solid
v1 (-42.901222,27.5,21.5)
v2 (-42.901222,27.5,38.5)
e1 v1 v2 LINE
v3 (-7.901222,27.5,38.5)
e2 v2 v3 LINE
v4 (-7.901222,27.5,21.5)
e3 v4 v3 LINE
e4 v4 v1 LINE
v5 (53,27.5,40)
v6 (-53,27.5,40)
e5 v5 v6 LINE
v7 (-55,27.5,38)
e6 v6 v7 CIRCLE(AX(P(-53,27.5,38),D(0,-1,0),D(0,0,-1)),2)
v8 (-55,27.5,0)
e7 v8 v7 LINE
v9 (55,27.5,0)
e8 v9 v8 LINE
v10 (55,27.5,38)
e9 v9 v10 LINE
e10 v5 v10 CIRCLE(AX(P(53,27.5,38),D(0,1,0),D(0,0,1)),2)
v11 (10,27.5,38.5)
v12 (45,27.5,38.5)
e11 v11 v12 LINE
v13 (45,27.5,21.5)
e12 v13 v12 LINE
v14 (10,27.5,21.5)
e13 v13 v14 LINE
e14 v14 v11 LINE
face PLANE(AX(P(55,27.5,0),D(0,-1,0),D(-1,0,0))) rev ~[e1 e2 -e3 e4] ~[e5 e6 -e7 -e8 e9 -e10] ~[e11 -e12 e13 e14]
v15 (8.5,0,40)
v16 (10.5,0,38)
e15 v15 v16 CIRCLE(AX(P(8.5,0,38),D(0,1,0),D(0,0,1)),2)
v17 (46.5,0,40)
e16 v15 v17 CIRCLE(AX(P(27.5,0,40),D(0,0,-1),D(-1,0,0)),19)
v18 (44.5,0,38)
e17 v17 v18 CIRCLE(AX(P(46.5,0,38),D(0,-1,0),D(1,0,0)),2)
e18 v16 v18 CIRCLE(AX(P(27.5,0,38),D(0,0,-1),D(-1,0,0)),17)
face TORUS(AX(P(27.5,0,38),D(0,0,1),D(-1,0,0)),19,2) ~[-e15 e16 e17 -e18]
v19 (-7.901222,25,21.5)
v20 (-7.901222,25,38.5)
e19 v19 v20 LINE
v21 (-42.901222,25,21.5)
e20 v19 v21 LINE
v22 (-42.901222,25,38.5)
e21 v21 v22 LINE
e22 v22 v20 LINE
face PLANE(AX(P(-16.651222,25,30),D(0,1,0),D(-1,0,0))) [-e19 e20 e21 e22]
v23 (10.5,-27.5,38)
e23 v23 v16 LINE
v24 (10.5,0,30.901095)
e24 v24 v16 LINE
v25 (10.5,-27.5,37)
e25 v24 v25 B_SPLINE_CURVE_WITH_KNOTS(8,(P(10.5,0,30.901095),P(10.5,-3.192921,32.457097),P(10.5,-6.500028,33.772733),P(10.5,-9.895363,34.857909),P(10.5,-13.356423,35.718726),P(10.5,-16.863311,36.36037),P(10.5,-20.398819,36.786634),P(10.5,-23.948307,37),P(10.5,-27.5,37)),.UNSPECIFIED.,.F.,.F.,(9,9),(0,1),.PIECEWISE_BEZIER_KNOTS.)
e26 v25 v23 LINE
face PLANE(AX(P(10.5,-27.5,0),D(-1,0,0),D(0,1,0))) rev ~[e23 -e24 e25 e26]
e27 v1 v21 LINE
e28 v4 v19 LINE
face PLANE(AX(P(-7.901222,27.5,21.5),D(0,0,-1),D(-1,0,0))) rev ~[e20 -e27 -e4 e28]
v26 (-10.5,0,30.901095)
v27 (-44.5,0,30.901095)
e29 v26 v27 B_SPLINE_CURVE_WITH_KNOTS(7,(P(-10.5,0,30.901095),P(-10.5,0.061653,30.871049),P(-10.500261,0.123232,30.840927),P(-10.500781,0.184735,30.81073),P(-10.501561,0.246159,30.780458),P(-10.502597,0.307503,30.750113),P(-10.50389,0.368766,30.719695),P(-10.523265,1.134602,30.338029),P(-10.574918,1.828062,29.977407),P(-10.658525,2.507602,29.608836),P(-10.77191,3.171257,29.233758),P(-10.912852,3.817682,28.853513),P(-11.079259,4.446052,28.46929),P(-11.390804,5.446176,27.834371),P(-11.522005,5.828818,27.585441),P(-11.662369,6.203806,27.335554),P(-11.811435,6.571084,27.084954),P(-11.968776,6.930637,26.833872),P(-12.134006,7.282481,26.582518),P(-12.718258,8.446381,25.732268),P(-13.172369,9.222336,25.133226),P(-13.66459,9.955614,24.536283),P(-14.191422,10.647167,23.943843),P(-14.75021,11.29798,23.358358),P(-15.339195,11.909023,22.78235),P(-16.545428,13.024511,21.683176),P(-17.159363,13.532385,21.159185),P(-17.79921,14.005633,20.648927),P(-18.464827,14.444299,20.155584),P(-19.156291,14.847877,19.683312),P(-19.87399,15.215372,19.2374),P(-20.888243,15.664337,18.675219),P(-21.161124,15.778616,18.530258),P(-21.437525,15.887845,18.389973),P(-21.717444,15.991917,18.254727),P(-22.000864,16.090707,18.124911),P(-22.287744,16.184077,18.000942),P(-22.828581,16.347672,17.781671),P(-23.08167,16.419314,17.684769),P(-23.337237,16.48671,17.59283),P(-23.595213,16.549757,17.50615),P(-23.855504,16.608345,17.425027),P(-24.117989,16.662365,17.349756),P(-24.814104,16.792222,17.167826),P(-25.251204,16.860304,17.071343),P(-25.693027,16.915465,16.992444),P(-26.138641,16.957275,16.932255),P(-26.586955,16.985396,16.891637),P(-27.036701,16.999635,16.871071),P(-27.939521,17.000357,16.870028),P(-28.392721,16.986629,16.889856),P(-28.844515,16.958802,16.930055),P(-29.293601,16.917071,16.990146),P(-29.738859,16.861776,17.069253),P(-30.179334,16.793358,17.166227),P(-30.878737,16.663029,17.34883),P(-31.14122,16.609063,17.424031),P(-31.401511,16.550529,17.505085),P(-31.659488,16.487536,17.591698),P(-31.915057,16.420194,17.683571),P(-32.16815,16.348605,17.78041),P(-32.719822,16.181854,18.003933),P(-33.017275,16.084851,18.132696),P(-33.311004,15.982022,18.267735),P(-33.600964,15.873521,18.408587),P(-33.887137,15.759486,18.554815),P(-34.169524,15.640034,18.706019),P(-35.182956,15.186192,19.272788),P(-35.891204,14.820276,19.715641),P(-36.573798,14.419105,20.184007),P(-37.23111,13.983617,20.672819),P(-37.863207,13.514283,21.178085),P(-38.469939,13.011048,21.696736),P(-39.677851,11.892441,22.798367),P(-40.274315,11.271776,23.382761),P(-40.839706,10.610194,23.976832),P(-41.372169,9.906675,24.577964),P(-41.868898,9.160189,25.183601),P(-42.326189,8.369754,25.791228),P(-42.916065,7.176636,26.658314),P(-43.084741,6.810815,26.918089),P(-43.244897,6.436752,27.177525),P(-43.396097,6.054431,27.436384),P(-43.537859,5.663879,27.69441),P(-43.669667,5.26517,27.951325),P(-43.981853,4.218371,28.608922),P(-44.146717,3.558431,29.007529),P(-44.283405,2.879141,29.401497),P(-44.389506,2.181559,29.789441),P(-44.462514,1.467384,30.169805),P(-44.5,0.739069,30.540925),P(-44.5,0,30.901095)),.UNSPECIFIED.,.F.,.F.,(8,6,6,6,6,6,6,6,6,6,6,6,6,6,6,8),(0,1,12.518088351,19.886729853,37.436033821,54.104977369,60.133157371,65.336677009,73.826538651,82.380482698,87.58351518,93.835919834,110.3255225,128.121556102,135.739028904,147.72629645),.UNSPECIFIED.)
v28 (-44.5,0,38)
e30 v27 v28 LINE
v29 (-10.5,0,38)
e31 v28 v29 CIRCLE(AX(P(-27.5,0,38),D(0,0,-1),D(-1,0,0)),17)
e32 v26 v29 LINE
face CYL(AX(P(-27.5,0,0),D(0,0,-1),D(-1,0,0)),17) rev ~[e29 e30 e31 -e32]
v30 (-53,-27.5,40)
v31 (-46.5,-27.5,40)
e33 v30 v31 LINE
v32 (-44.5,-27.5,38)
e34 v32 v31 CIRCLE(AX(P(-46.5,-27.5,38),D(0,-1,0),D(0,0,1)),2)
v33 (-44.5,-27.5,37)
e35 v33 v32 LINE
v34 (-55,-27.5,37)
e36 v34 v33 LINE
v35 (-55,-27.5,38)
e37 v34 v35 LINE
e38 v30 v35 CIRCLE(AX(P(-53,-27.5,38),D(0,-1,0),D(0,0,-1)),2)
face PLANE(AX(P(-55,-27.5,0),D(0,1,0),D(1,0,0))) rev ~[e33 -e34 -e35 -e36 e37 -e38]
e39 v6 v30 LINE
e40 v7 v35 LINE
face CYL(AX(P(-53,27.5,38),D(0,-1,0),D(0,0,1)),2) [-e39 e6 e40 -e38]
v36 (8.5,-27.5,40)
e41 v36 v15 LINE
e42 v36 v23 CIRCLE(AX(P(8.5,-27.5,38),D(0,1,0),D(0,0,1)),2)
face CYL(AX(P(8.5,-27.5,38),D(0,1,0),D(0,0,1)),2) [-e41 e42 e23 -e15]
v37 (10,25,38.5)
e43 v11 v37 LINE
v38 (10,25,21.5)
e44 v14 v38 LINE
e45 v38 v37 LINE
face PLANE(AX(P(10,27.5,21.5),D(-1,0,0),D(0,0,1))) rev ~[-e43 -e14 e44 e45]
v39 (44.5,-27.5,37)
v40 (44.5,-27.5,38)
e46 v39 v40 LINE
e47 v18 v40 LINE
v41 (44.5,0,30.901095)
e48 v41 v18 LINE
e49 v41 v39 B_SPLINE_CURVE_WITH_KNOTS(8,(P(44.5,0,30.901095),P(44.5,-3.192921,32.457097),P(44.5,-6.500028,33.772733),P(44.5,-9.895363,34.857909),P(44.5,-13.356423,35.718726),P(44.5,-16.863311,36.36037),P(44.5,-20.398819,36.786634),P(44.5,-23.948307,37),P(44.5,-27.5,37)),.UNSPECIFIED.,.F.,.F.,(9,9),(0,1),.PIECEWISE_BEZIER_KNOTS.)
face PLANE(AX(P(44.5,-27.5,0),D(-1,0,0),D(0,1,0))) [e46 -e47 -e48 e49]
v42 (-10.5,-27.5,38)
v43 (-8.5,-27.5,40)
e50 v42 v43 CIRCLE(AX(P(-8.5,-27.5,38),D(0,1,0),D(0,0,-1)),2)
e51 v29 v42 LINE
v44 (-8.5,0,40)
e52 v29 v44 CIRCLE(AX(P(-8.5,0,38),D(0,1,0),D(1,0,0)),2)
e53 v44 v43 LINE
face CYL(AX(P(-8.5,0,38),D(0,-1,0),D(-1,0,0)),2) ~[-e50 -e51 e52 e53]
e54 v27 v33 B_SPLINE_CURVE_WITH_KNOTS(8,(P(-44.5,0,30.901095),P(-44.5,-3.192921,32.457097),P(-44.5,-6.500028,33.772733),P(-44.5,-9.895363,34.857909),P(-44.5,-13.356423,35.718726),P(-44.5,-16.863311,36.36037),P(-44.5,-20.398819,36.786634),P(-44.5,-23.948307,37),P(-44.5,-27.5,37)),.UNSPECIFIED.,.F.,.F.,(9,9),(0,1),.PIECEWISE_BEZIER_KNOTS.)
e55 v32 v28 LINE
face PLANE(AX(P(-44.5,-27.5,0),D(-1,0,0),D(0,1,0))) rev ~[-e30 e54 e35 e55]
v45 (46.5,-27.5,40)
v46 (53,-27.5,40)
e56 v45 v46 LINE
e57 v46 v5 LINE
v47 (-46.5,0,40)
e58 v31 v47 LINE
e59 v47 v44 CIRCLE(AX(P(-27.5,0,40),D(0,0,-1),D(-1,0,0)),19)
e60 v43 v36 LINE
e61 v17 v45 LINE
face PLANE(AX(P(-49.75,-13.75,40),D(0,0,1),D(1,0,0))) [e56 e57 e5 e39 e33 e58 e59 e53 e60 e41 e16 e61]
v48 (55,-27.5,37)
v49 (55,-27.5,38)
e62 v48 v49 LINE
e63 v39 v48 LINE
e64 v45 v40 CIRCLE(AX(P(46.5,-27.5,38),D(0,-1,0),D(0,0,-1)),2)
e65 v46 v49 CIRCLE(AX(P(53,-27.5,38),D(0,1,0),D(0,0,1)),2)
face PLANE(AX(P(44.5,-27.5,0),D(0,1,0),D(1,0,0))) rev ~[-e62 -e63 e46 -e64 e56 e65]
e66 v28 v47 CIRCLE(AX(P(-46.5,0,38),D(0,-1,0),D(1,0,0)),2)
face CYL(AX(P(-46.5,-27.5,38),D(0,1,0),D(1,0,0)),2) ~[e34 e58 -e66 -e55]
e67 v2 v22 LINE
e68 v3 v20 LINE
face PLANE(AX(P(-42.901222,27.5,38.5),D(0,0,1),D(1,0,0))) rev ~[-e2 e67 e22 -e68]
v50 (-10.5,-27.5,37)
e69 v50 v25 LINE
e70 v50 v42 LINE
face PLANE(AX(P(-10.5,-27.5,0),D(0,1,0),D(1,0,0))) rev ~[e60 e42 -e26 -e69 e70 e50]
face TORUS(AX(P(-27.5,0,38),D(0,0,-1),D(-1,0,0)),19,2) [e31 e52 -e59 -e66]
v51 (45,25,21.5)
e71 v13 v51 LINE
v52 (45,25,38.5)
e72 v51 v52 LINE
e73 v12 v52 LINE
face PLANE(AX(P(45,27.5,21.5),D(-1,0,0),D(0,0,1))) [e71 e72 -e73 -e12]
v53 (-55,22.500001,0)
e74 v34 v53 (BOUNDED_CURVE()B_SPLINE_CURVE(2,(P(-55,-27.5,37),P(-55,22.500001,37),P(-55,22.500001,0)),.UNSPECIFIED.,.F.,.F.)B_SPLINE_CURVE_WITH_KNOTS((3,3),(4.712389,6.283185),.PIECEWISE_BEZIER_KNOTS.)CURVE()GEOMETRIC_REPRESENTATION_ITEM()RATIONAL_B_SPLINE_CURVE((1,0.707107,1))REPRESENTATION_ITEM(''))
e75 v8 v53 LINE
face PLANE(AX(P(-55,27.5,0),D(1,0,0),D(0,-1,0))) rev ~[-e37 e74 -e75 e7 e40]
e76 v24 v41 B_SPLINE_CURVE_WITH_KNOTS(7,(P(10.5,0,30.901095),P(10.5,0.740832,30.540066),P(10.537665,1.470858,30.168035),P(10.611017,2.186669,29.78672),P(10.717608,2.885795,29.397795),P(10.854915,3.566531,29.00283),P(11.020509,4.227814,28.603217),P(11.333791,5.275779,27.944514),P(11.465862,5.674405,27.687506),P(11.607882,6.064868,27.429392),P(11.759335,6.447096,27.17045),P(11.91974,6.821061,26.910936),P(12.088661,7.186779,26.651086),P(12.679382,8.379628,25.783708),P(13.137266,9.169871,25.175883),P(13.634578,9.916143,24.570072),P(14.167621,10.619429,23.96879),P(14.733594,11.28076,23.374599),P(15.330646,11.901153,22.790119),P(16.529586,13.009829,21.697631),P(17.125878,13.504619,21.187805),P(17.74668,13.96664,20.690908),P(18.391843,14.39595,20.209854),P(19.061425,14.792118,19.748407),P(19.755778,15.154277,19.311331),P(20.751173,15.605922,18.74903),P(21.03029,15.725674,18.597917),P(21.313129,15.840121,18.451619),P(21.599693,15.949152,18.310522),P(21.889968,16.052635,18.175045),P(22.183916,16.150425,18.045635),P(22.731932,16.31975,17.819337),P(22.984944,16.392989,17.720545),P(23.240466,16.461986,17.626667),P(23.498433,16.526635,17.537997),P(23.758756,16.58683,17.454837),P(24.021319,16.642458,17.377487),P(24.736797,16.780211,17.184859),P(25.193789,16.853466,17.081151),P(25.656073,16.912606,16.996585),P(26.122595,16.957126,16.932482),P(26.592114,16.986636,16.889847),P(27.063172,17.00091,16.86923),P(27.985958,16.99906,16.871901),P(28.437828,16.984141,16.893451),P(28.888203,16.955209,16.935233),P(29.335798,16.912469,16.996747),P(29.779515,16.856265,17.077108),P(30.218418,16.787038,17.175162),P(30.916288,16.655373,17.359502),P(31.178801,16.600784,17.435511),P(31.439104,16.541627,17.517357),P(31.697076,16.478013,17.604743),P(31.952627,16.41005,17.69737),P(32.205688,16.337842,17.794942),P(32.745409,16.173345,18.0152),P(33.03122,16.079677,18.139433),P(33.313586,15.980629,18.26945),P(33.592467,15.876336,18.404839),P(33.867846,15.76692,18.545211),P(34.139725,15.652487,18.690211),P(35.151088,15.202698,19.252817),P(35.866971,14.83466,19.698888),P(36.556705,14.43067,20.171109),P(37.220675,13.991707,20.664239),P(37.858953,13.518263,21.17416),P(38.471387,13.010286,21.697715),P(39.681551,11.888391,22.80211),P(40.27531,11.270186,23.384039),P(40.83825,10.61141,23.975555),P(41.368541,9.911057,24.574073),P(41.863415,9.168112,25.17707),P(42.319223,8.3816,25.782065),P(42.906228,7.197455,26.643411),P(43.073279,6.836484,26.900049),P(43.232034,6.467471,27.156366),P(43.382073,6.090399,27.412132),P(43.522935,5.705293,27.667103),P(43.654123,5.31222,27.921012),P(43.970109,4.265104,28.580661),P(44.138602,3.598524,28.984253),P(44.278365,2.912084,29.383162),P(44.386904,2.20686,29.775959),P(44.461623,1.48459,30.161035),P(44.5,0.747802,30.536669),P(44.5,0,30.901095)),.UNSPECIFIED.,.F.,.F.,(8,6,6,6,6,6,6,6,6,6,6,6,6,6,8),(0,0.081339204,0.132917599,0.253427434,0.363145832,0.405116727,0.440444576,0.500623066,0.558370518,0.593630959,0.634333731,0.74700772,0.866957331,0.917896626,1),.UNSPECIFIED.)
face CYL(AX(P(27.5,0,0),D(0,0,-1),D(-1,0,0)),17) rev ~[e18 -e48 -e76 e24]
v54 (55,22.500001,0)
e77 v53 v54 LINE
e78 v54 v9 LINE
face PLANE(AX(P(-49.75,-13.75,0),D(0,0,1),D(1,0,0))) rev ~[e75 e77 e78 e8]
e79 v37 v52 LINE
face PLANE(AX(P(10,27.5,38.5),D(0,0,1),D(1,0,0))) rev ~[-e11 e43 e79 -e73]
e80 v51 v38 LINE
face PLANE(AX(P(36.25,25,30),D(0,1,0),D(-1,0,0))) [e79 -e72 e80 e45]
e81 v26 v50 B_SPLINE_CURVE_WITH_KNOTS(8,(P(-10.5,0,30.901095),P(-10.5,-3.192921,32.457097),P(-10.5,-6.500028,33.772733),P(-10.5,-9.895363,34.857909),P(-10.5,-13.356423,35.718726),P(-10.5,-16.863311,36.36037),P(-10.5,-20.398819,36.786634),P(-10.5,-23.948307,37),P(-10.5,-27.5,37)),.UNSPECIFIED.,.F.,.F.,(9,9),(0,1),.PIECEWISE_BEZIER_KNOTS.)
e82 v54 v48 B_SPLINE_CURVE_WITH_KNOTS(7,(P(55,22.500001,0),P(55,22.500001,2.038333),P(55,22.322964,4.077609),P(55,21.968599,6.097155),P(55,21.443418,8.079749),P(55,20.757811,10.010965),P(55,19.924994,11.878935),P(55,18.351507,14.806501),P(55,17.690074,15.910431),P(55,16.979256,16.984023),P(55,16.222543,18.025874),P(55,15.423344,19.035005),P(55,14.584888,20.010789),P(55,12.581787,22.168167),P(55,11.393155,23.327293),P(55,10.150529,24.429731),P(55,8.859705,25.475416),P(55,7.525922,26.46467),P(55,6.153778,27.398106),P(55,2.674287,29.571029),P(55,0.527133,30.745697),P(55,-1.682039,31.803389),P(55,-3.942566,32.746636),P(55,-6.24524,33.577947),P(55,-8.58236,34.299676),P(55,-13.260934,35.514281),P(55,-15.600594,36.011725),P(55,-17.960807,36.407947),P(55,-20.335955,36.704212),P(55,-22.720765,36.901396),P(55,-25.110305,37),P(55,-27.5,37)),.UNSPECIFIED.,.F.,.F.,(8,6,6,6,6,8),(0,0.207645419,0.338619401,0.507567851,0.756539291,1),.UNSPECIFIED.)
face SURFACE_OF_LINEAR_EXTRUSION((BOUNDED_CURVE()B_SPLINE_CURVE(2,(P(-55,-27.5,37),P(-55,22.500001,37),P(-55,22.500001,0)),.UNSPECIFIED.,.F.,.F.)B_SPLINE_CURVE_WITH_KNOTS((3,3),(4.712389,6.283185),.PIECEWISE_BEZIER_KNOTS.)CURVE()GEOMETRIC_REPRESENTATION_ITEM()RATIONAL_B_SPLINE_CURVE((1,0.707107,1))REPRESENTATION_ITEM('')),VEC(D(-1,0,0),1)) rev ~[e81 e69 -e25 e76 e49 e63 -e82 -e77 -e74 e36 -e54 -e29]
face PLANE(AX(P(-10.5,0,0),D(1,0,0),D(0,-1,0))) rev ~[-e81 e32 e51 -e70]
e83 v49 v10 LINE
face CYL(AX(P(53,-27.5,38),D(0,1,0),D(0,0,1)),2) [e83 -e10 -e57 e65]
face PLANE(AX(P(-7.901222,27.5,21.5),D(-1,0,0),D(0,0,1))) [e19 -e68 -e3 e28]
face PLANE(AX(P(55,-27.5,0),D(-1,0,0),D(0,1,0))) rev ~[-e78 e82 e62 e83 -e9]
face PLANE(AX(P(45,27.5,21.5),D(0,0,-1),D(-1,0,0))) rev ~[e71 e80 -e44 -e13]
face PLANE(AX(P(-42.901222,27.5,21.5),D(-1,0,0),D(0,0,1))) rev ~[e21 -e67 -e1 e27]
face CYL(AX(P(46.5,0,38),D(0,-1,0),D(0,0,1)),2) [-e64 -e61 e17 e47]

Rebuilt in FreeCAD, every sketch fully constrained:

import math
import FreeCAD as App
import Part
import Sketcher


def edges_at(feature, points):
    """Names of the edges that pass closest to the given points."""
    edges = feature.Shape.Edges
    near = lambda p: min(range(len(edges)), key=lambda i: edges[i].distToShape(Part.Vertex(*p))[0])
    return sorted({f"Edge{near(p) + 1}" for p in points})


def add_polygon(sketch, points):
    """Adds a closed chain of lines whose ends are joined by coincident constraints."""
    first, n = sketch.GeometryCount, len(points)
    for a, b in zip(points, points[1:] + points[:1]):
        sketch.addGeometry(Part.LineSegment(App.Vector(*a, 0), App.Vector(*b, 0)), False)
    for i in range(n):
        sketch.addConstraint(Sketcher.Constraint("Coincident", first + i, 2, first + (i + 1) % n, 1))

doc = App.newDocument("Part")
body = doc.addObject("PartDesign::Body", "Body")

sketch1 = body.newObject("Sketcher::SketchObject", "Sketch")
sketch1.AttachmentSupport = (doc.getObject("XY_Plane"), [""])
sketch1.MapMode = "FlatFace"
sketch1.addGeometry(Part.LineSegment(App.Vector(-55, -28, 0), App.Vector(-44, -28, 0)), False)
sketch1.addGeometry(Part.LineSegment(App.Vector(-44, -28, 0), App.Vector(-44, 0, 0)), False)
sketch1.addGeometry(Part.ArcOfCircle(Part.Circle(App.Vector(-28, 0, 0), App.Vector(0, 0, 1), 17), math.radians(0), math.radians(180)), False)
sketch1.addGeometry(Part.LineSegment(App.Vector(-10, 0, 0), App.Vector(-10, -28, 0)), False)
sketch1.addGeometry(Part.LineSegment(App.Vector(-10, -28, 0), App.Vector(10, -28, 0)), False)
sketch1.addGeometry(Part.LineSegment(App.Vector(10, -28, 0), App.Vector(10, 0, 0)), False)
sketch1.addGeometry(Part.ArcOfCircle(Part.Circle(App.Vector(28, 0, 0), App.Vector(0, 0, 1), 17), math.radians(0), math.radians(180)), False)
sketch1.addGeometry(Part.LineSegment(App.Vector(44, 0, 0), App.Vector(44, -28, 0)), False)
sketch1.addGeometry(Part.LineSegment(App.Vector(44, -28, 0), App.Vector(55, -28, 0)), False)
sketch1.addGeometry(Part.LineSegment(App.Vector(55, -28, 0), App.Vector(55, 28, 0)), False)
sketch1.addGeometry(Part.LineSegment(App.Vector(55, 28, 0), App.Vector(-55, 28, 0)), False)
sketch1.addGeometry(Part.LineSegment(App.Vector(-55, 28, 0), App.Vector(-55, -28, 0)), False)
sketch1.addConstraint(Sketcher.Constraint("Coincident", 0, 2, 1, 1))
sketch1.addConstraint(Sketcher.Constraint("Tangent", 1, 2, 2, 2))
sketch1.addConstraint(Sketcher.Constraint("Tangent", 2, 1, 3, 1))
sketch1.addConstraint(Sketcher.Constraint("Coincident", 3, 2, 4, 1))
sketch1.addConstraint(Sketcher.Constraint("Coincident", 4, 2, 5, 1))
sketch1.addConstraint(Sketcher.Constraint("Tangent", 5, 2, 6, 2))
sketch1.addConstraint(Sketcher.Constraint("Tangent", 6, 1, 7, 1))
sketch1.addConstraint(Sketcher.Constraint("Coincident", 7, 2, 8, 1))
sketch1.addConstraint(Sketcher.Constraint("Coincident", 8, 2, 9, 1))
sketch1.addConstraint(Sketcher.Constraint("Coincident", 9, 2, 10, 1))
sketch1.addConstraint(Sketcher.Constraint("Coincident", 10, 2, 11, 1))
sketch1.addConstraint(Sketcher.Constraint("Coincident", 11, 2, 0, 1))
sketch1.addConstraint(Sketcher.Constraint("Horizontal", 0))
sketch1.addConstraint(Sketcher.Constraint("Vertical", 1))
sketch1.addConstraint(Sketcher.Constraint("Vertical", 3))
sketch1.addConstraint(Sketcher.Constraint("Horizontal", 4))
sketch1.addConstraint(Sketcher.Constraint("Vertical", 5))
sketch1.addConstraint(Sketcher.Constraint("Vertical", 7))
sketch1.addConstraint(Sketcher.Constraint("Horizontal", 8))
sketch1.addConstraint(Sketcher.Constraint("Vertical", 9))
sketch1.addConstraint(Sketcher.Constraint("Horizontal", 10))
sketch1.addConstraint(Sketcher.Constraint("Vertical", 11))
sketch1.addConstraint(Sketcher.Constraint("Equal", 2, 6))
sketch1.addConstraint(Sketcher.Constraint("Symmetric", 2, 3, 6, 3, -1, 1))
sketch1.addConstraint(Sketcher.Constraint("Symmetric", 8, 2, 10, 2, -1, 1))
sketch1.addConstraint(Sketcher.Constraint("PointOnObject", 2, 3, -1))
sketch1.addConstraint(Sketcher.Constraint("Horizontal", 0, 2, 3, 2))
sketch1.addConstraint(Sketcher.Constraint("Horizontal", 4, 2, 7, 2))
sketch1.addConstraint(Sketcher.Constraint("Radius", 2, 17.0))
sketch1.addConstraint(Sketcher.Constraint("DistanceX", 4, 1, 4, 2, 21.0))
sketch1.addConstraint(Sketcher.Constraint("DistanceX", 10, 2, 10, 1, 110.0))
sketch1.addConstraint(Sketcher.Constraint("DistanceY", 9, 1, 9, 2, 55.0))
pad1 = body.newObject("PartDesign::Pad", "Pad")
pad1.Profile = sketch1
pad1.Length = 40

sketch2 = body.newObject("Sketcher::SketchObject", "Sketch001")
sketch2.AttachmentSupport = (doc.getObject("YZ_Plane"), [""])
sketch2.MapMode = "FlatFace"
sketch2.AttachmentOffset = App.Placement(App.Vector(0, 0, -55), App.Rotation())
sketch2.addGeometry(Part.BSplineCurve([App.Vector(-27.5, 37, 0), App.Vector(22.500001, 37, 0), App.Vector(22.500001, 0, 0)], [3, 3], [4.712389, 6.283185], False, 2, [1, 0.707107, 1], False), False)
sketch2.addGeometry(Part.LineSegment(App.Vector(22.500001, 0, 0), App.Vector(-27.5, 0, 0)), False)
sketch2.addGeometry(Part.LineSegment(App.Vector(-27.5, 0, 0), App.Vector(-27.5, 37, 0)), False)
sketch2.addConstraint(Sketcher.Constraint("Block", 0))
sketch2.addConstraint(Sketcher.Constraint("Coincident", 0, 2, 1, 1))
sketch2.addConstraint(Sketcher.Constraint("Coincident", 1, 2, 2, 1))
sketch2.addConstraint(Sketcher.Constraint("Coincident", 2, 2, 0, 1))
sketch2.addConstraint(Sketcher.Constraint("Horizontal", 1))
sketch2.addConstraint(Sketcher.Constraint("Vertical", 2))
pocket1 = body.newObject("PartDesign::Pocket", "Pocket")
pocket1.Profile = sketch2
pocket1.Length = 120.3
pocket1.Reversed = True

sketch3 = body.newObject("Sketcher::SketchObject", "Sketch002")
sketch3.AttachmentSupport = (doc.getObject("XZ_Plane"), [""])
sketch3.MapMode = "FlatFace"
sketch3.AttachmentOffset = App.Placement(App.Vector(0, 0, -27.5), App.Rotation())
add_polygon(sketch3, [(45, 38), (45, 22), (10, 22), (10, 38)])
add_polygon(sketch3, [(-8, 38), (-8, 22), (-43, 22), (-43, 38)])
sketch3.addConstraint(Sketcher.Constraint("Vertical", 0))
sketch3.addConstraint(Sketcher.Constraint("Horizontal", 1))
sketch3.addConstraint(Sketcher.Constraint("Vertical", 2))
sketch3.addConstraint(Sketcher.Constraint("Horizontal", 3))
sketch3.addConstraint(Sketcher.Constraint("Vertical", 4))
sketch3.addConstraint(Sketcher.Constraint("Horizontal", 5))
sketch3.addConstraint(Sketcher.Constraint("Vertical", 6))
sketch3.addConstraint(Sketcher.Constraint("Horizontal", 7))
sketch3.addConstraint(Sketcher.Constraint("Horizontal", 1, 2, 4, 2))
sketch3.addConstraint(Sketcher.Constraint("Horizontal", 3, 2, 6, 2))
sketch3.addConstraint(Sketcher.Constraint("Equal", 3, 5))
sketch3.addConstraint(Sketcher.Constraint("DistanceX", 1, 2, 1, 1, 35.0))
sketch3.addConstraint(Sketcher.Constraint("DistanceY", 0, 2, 0, 1, 17.0))
sketch3.addConstraint(Sketcher.Constraint("DistanceX", -1, 1, 0, 2, 45.0))
sketch3.addConstraint(Sketcher.Constraint("DistanceY", -1, 1, 0, 2, 21.5))
sketch3.addConstraint(Sketcher.Constraint("DistanceX", 4, 2, -1, 1, 7.901222))
pocket2 = body.newObject("PartDesign::Pocket", "Pocket001")
pocket2.Profile = sketch3
pocket2.Length = 2.5
pocket2.Reversed = True
doc.recompute()

fillet = body.newObject("PartDesign::Fillet", "Fillet")
fillet.Base = (pocket2, edges_at(pocket2, [
    (-44.5, -13.75, 40),
    (10.5, -13.75, 40),
    (55, 0, 40),
    (-55, 0, 40),
]))
fillet.Radius = 2

doc.recompute()
